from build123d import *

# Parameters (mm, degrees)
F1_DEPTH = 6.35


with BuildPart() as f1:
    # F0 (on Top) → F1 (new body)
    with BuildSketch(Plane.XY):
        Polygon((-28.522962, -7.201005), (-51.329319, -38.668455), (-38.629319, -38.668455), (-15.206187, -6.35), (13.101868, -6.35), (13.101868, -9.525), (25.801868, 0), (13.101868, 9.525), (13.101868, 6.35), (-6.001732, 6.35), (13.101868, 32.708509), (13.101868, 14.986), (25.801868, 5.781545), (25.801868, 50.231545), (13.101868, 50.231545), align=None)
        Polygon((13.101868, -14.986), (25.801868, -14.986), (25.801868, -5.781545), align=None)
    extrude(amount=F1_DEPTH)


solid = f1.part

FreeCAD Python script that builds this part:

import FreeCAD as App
import Part
import Sketcher
from FreeCAD import Vector
Q = App.Units.Quantity


def add_polygon(sketch, points):
    """Adds a closed chain of lines whose ends are joined by coincident constraints."""
    first, n = sketch.GeometryCount, len(points)
    for a, b in zip(points, points[1:] + points[:1]):
        sketch.addGeometry(Part.LineSegment(App.Vector(*a, 0), App.Vector(*b, 0)), False)
    for i in range(n):
        sketch.addConstraint(Sketcher.Constraint("Coincident", first + i, 2, first + (i + 1) % n, 1))

doc = App.newDocument("Part")
body = doc.addObject("PartDesign::Body", "Body")
body.AllowCompound = True

# Sketch on XY plane
sketch1 = body.newObject("Sketcher::SketchObject", "Sketch")
sketch1.AttachmentSupport = (doc.getObject("XY_Plane"), [""])
sketch1.MapMode = "FlatFace"
add_polygon(sketch1, [(-28.522962, -7.201005), (-51.329319, -38.668455), (-38.629319, -38.668455), (-15.206187, -6.35), (13.101868, -6.35), (13.101868, -9.525), (25.801868, 0), (13.101868, 9.525), (13.101868, 6.35), (-6.001732, 6.35), (13.101868, 32.708509), (13.101868, 14.986), (25.801868, 5.781545), (25.801868, 50.231545), (13.101868, 50.231545)])  # lines 0-14
add_polygon(sketch1, [(13.101868, -14.986), (25.801868, -14.986), (25.801868, -5.781545)])  # lines 15-17
sketch1.addConstraint(Sketcher.Constraint("Horizontal", 1))
sketch1.addConstraint(Sketcher.Constraint("Horizontal", 3))
sketch1.addConstraint(Sketcher.Constraint("Vertical", 4))
sketch1.addConstraint(Sketcher.Constraint("Vertical", 7))
sketch1.addConstraint(Sketcher.Constraint("Horizontal", 8))
sketch1.addConstraint(Sketcher.Constraint("Vertical", 10))
sketch1.addConstraint(Sketcher.Constraint("Vertical", 12))
sketch1.addConstraint(Sketcher.Constraint("Horizontal", 13))
sketch1.addConstraint(Sketcher.Constraint("Horizontal", 15))
sketch1.addConstraint(Sketcher.Constraint("Vertical", 16))
sketch1.addConstraint(Sketcher.Constraint("Symmetric", 4, 2, 6, 2, -1))
sketch1.addConstraint(Sketcher.Constraint("Symmetric", 11, 2, 16, 2, -1))
sketch1.addConstraint(Sketcher.Constraint("Symmetric", 10, 2, 17, 2, -1))
sketch1.addConstraint(Sketcher.Constraint("PointOnObject", 5, 2, -1))
sketch1.addConstraint(Sketcher.Constraint("Parallel", 0, 2))
sketch1.addConstraint(Sketcher.Constraint("Parallel", 2, 9))
sketch1.addConstraint(Sketcher.Constraint("Perpendicular", 9, 11))
sketch1.addConstraint(Sketcher.Constraint("Perpendicular", 11, 14))
sketch1.addConstraint(Sketcher.Constraint("Vertical", 7, 2, 9, 2))
sketch1.addConstraint(Sketcher.Constraint("Vertical", 5, 2, 11, 2))
sketch1.addConstraint(Sketcher.Constraint("Vertical", 10, 2, 13, 2))
sketch1.addConstraint(Sketcher.Constraint("Equal", 1, 13))
sketch1.addConstraint(Sketcher.Constraint("Equal", 4, 7))
sketch1.addConstraint(Sketcher.Constraint("DistanceX", 1, 1, 1, 2, Q("0.5 in")))
sketch1.addConstraint(Sketcher.Constraint("DistanceY", 12, 1, 12, 2, Q("1.75 in")))
sketch1.addConstraint(Sketcher.Constraint("DistanceY", 3, 2, 7, 2, Q("0.5 in")))
sketch1.addConstraint(Sketcher.Constraint("DistanceY", 4, 2, 4, 1, Q("0.125 in")))
sketch1.addConstraint(Sketcher.Constraint("DistanceY", -1, 1, 10, 2, Q("0.59 in")))
sketch1.addConstraint(Sketcher.Constraint("DistanceX", 8, 2, 8, 1, 19.1036))
sketch1.addConstraint(Sketcher.Constraint("DistanceY", 10, 2, 10, 1, 17.722509))
sketch1.addConstraint(Sketcher.Constraint("Distance", 0, 38.862969))
sketch1.addConstraint(Sketcher.Constraint("Distance", 2, 39.913978))
sketch1.addConstraint(Sketcher.Constraint("DistanceX", 0, 2, -1, 1, 51.329319))
pad1 = body.newObject("PartDesign::Pad", "Pad")
pad1.Profile = sketch1
pad1.Length = Q("0.25 in")

doc.recompute()
